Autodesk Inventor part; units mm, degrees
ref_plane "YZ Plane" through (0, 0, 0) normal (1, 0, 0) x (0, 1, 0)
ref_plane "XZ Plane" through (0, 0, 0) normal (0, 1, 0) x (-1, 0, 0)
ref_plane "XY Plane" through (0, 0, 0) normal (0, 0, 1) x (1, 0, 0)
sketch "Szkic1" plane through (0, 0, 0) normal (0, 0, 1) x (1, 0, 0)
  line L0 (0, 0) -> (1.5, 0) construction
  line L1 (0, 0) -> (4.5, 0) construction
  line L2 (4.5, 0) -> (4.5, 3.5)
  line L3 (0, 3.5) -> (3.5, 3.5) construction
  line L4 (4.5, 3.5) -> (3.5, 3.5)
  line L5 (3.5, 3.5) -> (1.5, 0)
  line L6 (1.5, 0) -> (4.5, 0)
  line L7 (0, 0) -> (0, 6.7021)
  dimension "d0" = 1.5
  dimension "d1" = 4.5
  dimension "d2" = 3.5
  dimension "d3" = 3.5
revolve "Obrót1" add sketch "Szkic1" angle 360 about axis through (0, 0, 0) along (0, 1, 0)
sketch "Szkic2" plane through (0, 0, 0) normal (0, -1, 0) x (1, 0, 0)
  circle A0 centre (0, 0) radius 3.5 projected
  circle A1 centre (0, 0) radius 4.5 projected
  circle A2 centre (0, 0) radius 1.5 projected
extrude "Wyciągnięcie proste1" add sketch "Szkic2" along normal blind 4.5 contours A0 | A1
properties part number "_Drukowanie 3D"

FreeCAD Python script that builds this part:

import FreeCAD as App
import Part
import Sketcher
Q = App.Units.Quantity

doc = App.newDocument("Part")
body = doc.addObject("PartDesign::Body", "Body")

# Sketch on XY plane
sketch1 = body.newObject("Sketcher::SketchObject", "Sketch")
sketch1.AttachmentSupport = (doc.getObject("XY_Plane"), [""])
sketch1.MapMode = "FlatFace"
sketch1.addGeometry([
    Part.LineSegment(App.Vector(1.5, 0, 0), App.Vector(4.5, 0, 0)),
    Part.LineSegment(App.Vector(4.5, 0, 0), App.Vector(4.5, 3.5, 0)),
    Part.LineSegment(App.Vector(4.5, 3.5, 0), App.Vector(3.5, 3.5, 0)),
    Part.LineSegment(App.Vector(3.5, 3.5, 0), App.Vector(1.5, 0, 0)),
], False)
sketch1.addConstraint([
    Sketcher.Constraint("Coincident", 0, 2, 1, 1),
    Sketcher.Constraint("Coincident", 1, 2, 2, 1),
    Sketcher.Constraint("Coincident", 2, 2, 3, 1),
    Sketcher.Constraint("Coincident", 3, 2, 0, 1),
    Sketcher.Constraint("Horizontal", 0),
    Sketcher.Constraint("Vertical", 1),
    Sketcher.Constraint("Horizontal", 2),
    Sketcher.Constraint("PointOnObject", 0, 2, -1),
    Sketcher.Constraint("DistanceY", 1, 1, 1, 2, Q("3.5 mm")),
    Sketcher.Constraint("DistanceX", -1, 1, 0, 2, Q("4.5 mm")),
    Sketcher.Constraint("DistanceX", -1, 1, 2, 2, Q("3.5 mm")),
    Sketcher.Constraint("DistanceX", -1, 1, 3, 2, Q("1.5 mm")),
])
revolution = body.newObject("PartDesign::Revolution", "Revolution")
revolution.Profile = sketch1
revolution.ReferenceAxis = (sketch1, ["V_Axis"])
revolution.Angle = 360

# Sketch on XZ plane
sketch2 = body.newObject("Sketcher::SketchObject", "Sketch001")
sketch2.AttachmentSupport = (doc.getObject("XZ_Plane"), [""])
sketch2.MapMode = "FlatFace"
sketch2.addGeometry([
    Part.Circle(App.Vector(0, 0, 0), App.Vector(0, 0, 1), 4.5),
    Part.Circle(App.Vector(0, 0, 0), App.Vector(0, 0, 1), 1.5),
], False)
sketch2.addConstraint([
    Sketcher.Constraint("Coincident", 0, 3, -1, 1),
    Sketcher.Constraint("Coincident", 1, 3, -1, 1),
    Sketcher.Constraint("Diameter", 0, Q("9 mm")),
    Sketcher.Constraint("Diameter", 1, Q("3 mm")),
])
pad1 = body.newObject("PartDesign::Pad", "Pad")
pad1.Profile = sketch2
pad1.Length = 4.5

doc.recompute()
